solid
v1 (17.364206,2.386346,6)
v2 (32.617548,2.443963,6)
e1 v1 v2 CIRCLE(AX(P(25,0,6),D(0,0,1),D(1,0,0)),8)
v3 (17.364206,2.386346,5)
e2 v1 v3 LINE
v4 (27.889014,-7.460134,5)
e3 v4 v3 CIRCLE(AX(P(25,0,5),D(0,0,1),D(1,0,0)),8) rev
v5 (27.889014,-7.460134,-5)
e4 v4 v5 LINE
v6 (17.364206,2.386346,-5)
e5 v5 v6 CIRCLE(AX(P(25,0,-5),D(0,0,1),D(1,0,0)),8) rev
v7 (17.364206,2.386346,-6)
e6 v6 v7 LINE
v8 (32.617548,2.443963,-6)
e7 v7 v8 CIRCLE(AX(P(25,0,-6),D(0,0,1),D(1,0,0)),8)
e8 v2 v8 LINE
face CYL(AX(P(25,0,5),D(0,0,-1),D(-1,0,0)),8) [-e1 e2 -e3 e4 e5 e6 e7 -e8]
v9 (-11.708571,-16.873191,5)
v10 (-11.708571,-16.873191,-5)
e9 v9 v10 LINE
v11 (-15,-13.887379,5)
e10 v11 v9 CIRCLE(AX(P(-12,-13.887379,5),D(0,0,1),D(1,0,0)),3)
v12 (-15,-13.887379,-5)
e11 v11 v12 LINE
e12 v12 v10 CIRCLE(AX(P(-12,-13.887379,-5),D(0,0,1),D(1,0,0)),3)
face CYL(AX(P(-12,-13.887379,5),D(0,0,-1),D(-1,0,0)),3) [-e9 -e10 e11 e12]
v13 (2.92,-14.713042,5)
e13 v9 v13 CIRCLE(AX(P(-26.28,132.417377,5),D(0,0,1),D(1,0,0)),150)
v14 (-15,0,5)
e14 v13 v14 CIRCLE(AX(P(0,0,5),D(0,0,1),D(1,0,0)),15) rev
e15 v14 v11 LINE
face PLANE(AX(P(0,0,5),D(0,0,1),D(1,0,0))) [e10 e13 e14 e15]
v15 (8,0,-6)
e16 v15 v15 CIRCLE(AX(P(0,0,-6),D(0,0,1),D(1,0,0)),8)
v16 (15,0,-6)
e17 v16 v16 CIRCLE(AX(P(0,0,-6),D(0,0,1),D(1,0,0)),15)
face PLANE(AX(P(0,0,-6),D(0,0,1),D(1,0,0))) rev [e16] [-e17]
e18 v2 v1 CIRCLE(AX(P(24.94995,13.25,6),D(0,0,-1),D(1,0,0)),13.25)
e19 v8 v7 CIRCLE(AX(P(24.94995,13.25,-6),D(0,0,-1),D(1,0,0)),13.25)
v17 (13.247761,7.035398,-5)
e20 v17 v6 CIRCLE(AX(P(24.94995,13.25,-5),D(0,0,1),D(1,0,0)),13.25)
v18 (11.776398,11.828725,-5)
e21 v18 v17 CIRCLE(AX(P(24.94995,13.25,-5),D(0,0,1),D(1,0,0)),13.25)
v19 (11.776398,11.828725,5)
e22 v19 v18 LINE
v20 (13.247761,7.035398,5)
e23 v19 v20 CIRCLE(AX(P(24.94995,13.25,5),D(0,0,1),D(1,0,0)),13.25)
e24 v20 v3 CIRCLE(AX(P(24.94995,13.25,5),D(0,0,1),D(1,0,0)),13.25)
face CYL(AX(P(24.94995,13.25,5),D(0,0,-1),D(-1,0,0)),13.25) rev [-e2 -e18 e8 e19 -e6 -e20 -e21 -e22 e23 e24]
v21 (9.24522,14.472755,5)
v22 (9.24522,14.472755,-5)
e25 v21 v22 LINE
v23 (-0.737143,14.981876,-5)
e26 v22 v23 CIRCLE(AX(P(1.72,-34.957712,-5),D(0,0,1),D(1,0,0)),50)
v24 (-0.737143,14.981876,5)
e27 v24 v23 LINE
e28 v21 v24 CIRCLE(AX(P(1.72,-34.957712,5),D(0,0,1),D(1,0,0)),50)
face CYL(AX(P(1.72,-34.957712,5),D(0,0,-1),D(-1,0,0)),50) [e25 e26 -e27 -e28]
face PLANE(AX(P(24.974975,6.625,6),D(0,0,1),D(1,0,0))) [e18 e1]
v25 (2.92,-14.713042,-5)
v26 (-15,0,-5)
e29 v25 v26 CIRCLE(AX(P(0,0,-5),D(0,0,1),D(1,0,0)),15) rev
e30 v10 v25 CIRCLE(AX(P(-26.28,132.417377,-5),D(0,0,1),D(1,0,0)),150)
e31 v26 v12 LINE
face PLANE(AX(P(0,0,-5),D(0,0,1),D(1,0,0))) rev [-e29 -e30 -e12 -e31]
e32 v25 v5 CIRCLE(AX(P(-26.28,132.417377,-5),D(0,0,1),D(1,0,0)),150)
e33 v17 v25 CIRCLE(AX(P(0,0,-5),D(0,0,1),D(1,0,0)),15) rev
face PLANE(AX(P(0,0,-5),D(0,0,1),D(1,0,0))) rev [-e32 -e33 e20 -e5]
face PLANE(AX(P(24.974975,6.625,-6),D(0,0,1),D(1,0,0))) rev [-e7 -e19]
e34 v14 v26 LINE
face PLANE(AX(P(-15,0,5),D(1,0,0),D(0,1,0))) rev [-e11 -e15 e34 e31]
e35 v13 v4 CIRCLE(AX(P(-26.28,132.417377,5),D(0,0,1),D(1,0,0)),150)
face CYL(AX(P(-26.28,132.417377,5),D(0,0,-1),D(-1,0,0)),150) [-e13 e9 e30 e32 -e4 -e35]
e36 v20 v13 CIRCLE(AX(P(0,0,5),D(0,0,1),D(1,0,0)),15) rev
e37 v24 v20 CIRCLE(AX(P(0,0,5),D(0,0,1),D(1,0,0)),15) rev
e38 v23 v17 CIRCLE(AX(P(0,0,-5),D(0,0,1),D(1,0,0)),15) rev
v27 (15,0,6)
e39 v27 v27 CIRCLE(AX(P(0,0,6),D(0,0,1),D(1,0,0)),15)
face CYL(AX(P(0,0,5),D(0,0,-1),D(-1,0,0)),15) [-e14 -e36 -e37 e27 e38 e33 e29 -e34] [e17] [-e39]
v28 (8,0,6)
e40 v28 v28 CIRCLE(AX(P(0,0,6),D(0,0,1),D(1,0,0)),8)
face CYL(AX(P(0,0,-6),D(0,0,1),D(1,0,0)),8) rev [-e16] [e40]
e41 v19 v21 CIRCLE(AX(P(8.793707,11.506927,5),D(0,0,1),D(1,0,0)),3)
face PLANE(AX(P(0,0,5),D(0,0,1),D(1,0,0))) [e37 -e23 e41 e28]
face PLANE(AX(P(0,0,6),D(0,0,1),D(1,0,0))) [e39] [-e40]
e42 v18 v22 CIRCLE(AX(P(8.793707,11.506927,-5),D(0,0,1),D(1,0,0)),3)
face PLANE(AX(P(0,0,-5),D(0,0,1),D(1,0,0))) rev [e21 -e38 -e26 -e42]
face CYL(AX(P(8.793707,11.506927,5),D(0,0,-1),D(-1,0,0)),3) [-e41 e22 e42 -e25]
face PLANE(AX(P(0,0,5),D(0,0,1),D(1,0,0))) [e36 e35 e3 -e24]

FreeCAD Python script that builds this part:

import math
import FreeCAD as App
import Part
import Sketcher

V = App.Vector
Q = App.Units.Quantity

doc = App.newDocument("Part")
body = doc.addObject("PartDesign::Body", "Body")

sketch1 = body.newObject("Sketcher::SketchObject", "Sketch")
sketch1.AttachmentSupport = (doc.getObject("XY_Plane"), [""])
sketch1.MapMode = "FlatFace"
sketch1.addGeometry(Part.ArcOfCircle(Part.Circle(V(25, 0, 0), V(0, 0, 1), 8), math.radians(-69), math.radians(18)), False)
sketch1.addGeometry(Part.ArcOfCircle(Part.Circle(V(24.9, 13.3, 0), V(0, 0, 1), 13.3), math.radians(-125), math.radians(-55)), False)
sketch1.addGeometry(Part.ArcOfCircle(Part.Circle(V(24.9, 13.2, 0), V(0, 0, 1), 13.2), math.radians(-174), math.radians(-125)), False)
sketch1.addGeometry(Part.ArcOfCircle(Part.Circle(V(8.8, 11.5, 0), V(0, 0, 1), 3), math.radians(6), math.radians(81)), False)
sketch1.addGeometry(Part.ArcOfCircle(Part.Circle(V(1.7, -35, 0), V(0, 0, 1), 50), math.radians(81.34), math.radians(92.82)), False)
sketch1.addGeometry(Part.ArcOfCircle(Part.Circle(V(0, 0, 0), V(0, 0, 1), 15), math.radians(93), math.radians(180)), False)
sketch1.addGeometry(Part.LineSegment(V(-15, 0, 0), V(-15, -13.9, 0)), False)
sketch1.addGeometry(Part.ArcOfCircle(Part.Circle(V(-12, -13.9, 0), V(0, 0, 1), 3), math.radians(180), math.radians(276)), False)
sketch1.addGeometry(Part.ArcOfCircle(Part.Circle(V(-26.3, 132.4, 0), V(0, 0, 1), 150), math.radians(-84.43), math.radians(-68.83)), False)
sketch1.addConstraint(Sketcher.Constraint("Coincident", 0, 2, 1, 2))
sketch1.addConstraint(Sketcher.Constraint("Tangent", 1, 1, 2, 2))
sketch1.addConstraint(Sketcher.Constraint("Tangent", 2, 1, 3, 1))
sketch1.addConstraint(Sketcher.Constraint("Tangent", 3, 2, 4, 1))
sketch1.addConstraint(Sketcher.Constraint("Tangent", 4, 2, 5, 1))
sketch1.addConstraint(Sketcher.Constraint("Tangent", 5, 2, 6, 1))
sketch1.addConstraint(Sketcher.Constraint("Tangent", 6, 2, 7, 1))
sketch1.addConstraint(Sketcher.Constraint("Tangent", 7, 2, 8, 1))
sketch1.addConstraint(Sketcher.Constraint("Tangent", 8, 2, 0, 1))
sketch1.addConstraint(Sketcher.Constraint("Vertical", 6))
sketch1.addConstraint(Sketcher.Constraint("Coincident", 5, 3, -1, 1))
sketch1.addConstraint(Sketcher.Constraint("Equal", 1, 2))
sketch1.addConstraint(Sketcher.Constraint("Equal", 3, 7))
sketch1.addConstraint(Sketcher.Constraint("PointOnObject", 0, 3, -1))
sketch1.addConstraint(Sketcher.Constraint("Radius", 0, Q("8 mm")))
sketch1.addConstraint(Sketcher.Constraint("Radius", 3, Q("3 mm")))
sketch1.addConstraint(Sketcher.Constraint("Radius", 4, Q("50 mm")))
sketch1.addConstraint(Sketcher.Constraint("Radius", 5, Q("15 mm")))
sketch1.addConstraint(Sketcher.Constraint("Radius", 8, Q("150 mm")))
sketch1.addConstraint(Sketcher.Constraint("Radius", 1, Q("13.25 mm")))
sketch1.addConstraint(Sketcher.Constraint("DistanceX", -1, 1, 0, 3, Q("25 mm")))
sketch1.addConstraint(Sketcher.Constraint("DistanceY", -1, 1, 1, 3, Q("13.25 mm")))
sketch1.addConstraint(Sketcher.Constraint("DistanceX", -1, 1, 4, 3, Q("1.72 mm")))
sketch1.addConstraint(Sketcher.Constraint("DistanceX", 8, 3, -1, 1, Q("26.28 mm")))
sketch1.addConstraint(Sketcher.Constraint("DistanceX", 2, 3, 0, 2, Q("7.667599 mm")))
sketch1.addConstraint(Sketcher.Constraint("DistanceX", 3, 3, 1, 1, Q("8.570499 mm")))
pad1 = body.newObject("PartDesign::Pad", "Pad")
pad1.Profile = sketch1
pad1.Length = 10
pad1.Midplane = True

sketch2 = body.newObject("Sketcher::SketchObject", "Sketch001")
sketch2.AttachmentSupport = (doc.getObject("XY_Plane"), [""])
sketch2.MapMode = "FlatFace"
sketch2.addGeometry(Part.ArcOfCircle(Part.Circle(V(0, 0, 0), V(0, 0, 1), 15), math.radians(180), math.radians(388)), False)
sketch2.addGeometry(Part.ArcOfCircle(Part.Circle(V(0, 0, 0), V(0, 0, 1), 15), math.radians(28), math.radians(93)), False)
sketch2.addGeometry(Part.ArcOfCircle(Part.Circle(V(0, 0, 0), V(0, 0, 1), 15), math.radians(93), math.radians(180)), False)
sketch2.addConstraint(Sketcher.Constraint("Tangent", 0, 2, 1, 1))
sketch2.addConstraint(Sketcher.Constraint("Tangent", 1, 2, 2, 1))
sketch2.addConstraint(Sketcher.Constraint("Tangent", 2, 2, 0, 1))
sketch2.addConstraint(Sketcher.Constraint("Coincident", 0, 3, -1, 1))
sketch2.addConstraint(Sketcher.Constraint("PointOnObject", 2, 2, -1))
sketch2.addConstraint(Sketcher.Constraint("Radius", 0, Q("15 mm")))
sketch2.addConstraint(Sketcher.Constraint("DistanceY", -1, 1, 0, 2, Q("7.035398 mm")))
sketch2.addConstraint(Sketcher.Constraint("DistanceY", 0, 2, 1, 2, Q("7.946478 mm")))
pad2 = body.newObject("PartDesign::Pad", "Pad001")
pad2.Profile = sketch2
pad2.Length = 12
pad2.Midplane = True

sketch3 = body.newObject("Sketcher::SketchObject", "Sketch002")
sketch3.AttachmentSupport = (doc.getObject("XY_Plane"), [""])
sketch3.MapMode = "FlatFace"
sketch3.addGeometry(Part.ArcOfCircle(Part.Circle(V(25, 0, 0), V(0, 0, 1), 8), math.radians(163), math.radians(378)), False)
sketch3.addGeometry(Part.ArcOfCircle(Part.Circle(V(25, 13, 0), V(0, 0, 1), 13), math.radians(-125), math.radians(-55)), False)
sketch3.addConstraint(Sketcher.Constraint("Coincident", 0, 1, 1, 1))
sketch3.addConstraint(Sketcher.Constraint("Coincident", 1, 2, 0, 2))
sketch3.addConstraint(Sketcher.Constraint("PointOnObject", 0, 3, -1))
sketch3.addConstraint(Sketcher.Constraint("Radius", 0, Q("8 mm")))
sketch3.addConstraint(Sketcher.Constraint("Radius", 1, Q("13.25 mm")))
sketch3.addConstraint(Sketcher.Constraint("DistanceX", -1, 1, 0, 3, Q("25 mm")))
sketch3.addConstraint(Sketcher.Constraint("DistanceY", -1, 1, 1, 3, Q("13.25 mm")))
sketch3.addConstraint(Sketcher.Constraint("DistanceX", 1, 3, 1, 2, Q("7.667599 mm")))
pad3 = body.newObject("PartDesign::Pad", "Pad002")
pad3.Profile = sketch3
pad3.Length = 12
pad3.Midplane = True

sketch4 = body.newObject("Sketcher::SketchObject", "Sketch003")
sketch4.AttachmentSupport = (doc.getObject("XY_Plane"), [""])
sketch4.MapMode = "FlatFace"
sketch4.AttachmentOffset = App.Placement(V(0, 0, 6), App.Rotation())
sketch4.addGeometry(Part.Circle(V(0, 0, 0), V(0, 0, 1), 8), False)
sketch4.addConstraint(Sketcher.Constraint("Coincident", 0, 3, -1, 1))
sketch4.addConstraint(Sketcher.Constraint("Diameter", 0, Q("16 mm")))
pocket1 = body.newObject("PartDesign::Pocket", "Pocket")
pocket1.Profile = sketch4
pocket1.Type = "ThroughAll"

doc.recompute()
